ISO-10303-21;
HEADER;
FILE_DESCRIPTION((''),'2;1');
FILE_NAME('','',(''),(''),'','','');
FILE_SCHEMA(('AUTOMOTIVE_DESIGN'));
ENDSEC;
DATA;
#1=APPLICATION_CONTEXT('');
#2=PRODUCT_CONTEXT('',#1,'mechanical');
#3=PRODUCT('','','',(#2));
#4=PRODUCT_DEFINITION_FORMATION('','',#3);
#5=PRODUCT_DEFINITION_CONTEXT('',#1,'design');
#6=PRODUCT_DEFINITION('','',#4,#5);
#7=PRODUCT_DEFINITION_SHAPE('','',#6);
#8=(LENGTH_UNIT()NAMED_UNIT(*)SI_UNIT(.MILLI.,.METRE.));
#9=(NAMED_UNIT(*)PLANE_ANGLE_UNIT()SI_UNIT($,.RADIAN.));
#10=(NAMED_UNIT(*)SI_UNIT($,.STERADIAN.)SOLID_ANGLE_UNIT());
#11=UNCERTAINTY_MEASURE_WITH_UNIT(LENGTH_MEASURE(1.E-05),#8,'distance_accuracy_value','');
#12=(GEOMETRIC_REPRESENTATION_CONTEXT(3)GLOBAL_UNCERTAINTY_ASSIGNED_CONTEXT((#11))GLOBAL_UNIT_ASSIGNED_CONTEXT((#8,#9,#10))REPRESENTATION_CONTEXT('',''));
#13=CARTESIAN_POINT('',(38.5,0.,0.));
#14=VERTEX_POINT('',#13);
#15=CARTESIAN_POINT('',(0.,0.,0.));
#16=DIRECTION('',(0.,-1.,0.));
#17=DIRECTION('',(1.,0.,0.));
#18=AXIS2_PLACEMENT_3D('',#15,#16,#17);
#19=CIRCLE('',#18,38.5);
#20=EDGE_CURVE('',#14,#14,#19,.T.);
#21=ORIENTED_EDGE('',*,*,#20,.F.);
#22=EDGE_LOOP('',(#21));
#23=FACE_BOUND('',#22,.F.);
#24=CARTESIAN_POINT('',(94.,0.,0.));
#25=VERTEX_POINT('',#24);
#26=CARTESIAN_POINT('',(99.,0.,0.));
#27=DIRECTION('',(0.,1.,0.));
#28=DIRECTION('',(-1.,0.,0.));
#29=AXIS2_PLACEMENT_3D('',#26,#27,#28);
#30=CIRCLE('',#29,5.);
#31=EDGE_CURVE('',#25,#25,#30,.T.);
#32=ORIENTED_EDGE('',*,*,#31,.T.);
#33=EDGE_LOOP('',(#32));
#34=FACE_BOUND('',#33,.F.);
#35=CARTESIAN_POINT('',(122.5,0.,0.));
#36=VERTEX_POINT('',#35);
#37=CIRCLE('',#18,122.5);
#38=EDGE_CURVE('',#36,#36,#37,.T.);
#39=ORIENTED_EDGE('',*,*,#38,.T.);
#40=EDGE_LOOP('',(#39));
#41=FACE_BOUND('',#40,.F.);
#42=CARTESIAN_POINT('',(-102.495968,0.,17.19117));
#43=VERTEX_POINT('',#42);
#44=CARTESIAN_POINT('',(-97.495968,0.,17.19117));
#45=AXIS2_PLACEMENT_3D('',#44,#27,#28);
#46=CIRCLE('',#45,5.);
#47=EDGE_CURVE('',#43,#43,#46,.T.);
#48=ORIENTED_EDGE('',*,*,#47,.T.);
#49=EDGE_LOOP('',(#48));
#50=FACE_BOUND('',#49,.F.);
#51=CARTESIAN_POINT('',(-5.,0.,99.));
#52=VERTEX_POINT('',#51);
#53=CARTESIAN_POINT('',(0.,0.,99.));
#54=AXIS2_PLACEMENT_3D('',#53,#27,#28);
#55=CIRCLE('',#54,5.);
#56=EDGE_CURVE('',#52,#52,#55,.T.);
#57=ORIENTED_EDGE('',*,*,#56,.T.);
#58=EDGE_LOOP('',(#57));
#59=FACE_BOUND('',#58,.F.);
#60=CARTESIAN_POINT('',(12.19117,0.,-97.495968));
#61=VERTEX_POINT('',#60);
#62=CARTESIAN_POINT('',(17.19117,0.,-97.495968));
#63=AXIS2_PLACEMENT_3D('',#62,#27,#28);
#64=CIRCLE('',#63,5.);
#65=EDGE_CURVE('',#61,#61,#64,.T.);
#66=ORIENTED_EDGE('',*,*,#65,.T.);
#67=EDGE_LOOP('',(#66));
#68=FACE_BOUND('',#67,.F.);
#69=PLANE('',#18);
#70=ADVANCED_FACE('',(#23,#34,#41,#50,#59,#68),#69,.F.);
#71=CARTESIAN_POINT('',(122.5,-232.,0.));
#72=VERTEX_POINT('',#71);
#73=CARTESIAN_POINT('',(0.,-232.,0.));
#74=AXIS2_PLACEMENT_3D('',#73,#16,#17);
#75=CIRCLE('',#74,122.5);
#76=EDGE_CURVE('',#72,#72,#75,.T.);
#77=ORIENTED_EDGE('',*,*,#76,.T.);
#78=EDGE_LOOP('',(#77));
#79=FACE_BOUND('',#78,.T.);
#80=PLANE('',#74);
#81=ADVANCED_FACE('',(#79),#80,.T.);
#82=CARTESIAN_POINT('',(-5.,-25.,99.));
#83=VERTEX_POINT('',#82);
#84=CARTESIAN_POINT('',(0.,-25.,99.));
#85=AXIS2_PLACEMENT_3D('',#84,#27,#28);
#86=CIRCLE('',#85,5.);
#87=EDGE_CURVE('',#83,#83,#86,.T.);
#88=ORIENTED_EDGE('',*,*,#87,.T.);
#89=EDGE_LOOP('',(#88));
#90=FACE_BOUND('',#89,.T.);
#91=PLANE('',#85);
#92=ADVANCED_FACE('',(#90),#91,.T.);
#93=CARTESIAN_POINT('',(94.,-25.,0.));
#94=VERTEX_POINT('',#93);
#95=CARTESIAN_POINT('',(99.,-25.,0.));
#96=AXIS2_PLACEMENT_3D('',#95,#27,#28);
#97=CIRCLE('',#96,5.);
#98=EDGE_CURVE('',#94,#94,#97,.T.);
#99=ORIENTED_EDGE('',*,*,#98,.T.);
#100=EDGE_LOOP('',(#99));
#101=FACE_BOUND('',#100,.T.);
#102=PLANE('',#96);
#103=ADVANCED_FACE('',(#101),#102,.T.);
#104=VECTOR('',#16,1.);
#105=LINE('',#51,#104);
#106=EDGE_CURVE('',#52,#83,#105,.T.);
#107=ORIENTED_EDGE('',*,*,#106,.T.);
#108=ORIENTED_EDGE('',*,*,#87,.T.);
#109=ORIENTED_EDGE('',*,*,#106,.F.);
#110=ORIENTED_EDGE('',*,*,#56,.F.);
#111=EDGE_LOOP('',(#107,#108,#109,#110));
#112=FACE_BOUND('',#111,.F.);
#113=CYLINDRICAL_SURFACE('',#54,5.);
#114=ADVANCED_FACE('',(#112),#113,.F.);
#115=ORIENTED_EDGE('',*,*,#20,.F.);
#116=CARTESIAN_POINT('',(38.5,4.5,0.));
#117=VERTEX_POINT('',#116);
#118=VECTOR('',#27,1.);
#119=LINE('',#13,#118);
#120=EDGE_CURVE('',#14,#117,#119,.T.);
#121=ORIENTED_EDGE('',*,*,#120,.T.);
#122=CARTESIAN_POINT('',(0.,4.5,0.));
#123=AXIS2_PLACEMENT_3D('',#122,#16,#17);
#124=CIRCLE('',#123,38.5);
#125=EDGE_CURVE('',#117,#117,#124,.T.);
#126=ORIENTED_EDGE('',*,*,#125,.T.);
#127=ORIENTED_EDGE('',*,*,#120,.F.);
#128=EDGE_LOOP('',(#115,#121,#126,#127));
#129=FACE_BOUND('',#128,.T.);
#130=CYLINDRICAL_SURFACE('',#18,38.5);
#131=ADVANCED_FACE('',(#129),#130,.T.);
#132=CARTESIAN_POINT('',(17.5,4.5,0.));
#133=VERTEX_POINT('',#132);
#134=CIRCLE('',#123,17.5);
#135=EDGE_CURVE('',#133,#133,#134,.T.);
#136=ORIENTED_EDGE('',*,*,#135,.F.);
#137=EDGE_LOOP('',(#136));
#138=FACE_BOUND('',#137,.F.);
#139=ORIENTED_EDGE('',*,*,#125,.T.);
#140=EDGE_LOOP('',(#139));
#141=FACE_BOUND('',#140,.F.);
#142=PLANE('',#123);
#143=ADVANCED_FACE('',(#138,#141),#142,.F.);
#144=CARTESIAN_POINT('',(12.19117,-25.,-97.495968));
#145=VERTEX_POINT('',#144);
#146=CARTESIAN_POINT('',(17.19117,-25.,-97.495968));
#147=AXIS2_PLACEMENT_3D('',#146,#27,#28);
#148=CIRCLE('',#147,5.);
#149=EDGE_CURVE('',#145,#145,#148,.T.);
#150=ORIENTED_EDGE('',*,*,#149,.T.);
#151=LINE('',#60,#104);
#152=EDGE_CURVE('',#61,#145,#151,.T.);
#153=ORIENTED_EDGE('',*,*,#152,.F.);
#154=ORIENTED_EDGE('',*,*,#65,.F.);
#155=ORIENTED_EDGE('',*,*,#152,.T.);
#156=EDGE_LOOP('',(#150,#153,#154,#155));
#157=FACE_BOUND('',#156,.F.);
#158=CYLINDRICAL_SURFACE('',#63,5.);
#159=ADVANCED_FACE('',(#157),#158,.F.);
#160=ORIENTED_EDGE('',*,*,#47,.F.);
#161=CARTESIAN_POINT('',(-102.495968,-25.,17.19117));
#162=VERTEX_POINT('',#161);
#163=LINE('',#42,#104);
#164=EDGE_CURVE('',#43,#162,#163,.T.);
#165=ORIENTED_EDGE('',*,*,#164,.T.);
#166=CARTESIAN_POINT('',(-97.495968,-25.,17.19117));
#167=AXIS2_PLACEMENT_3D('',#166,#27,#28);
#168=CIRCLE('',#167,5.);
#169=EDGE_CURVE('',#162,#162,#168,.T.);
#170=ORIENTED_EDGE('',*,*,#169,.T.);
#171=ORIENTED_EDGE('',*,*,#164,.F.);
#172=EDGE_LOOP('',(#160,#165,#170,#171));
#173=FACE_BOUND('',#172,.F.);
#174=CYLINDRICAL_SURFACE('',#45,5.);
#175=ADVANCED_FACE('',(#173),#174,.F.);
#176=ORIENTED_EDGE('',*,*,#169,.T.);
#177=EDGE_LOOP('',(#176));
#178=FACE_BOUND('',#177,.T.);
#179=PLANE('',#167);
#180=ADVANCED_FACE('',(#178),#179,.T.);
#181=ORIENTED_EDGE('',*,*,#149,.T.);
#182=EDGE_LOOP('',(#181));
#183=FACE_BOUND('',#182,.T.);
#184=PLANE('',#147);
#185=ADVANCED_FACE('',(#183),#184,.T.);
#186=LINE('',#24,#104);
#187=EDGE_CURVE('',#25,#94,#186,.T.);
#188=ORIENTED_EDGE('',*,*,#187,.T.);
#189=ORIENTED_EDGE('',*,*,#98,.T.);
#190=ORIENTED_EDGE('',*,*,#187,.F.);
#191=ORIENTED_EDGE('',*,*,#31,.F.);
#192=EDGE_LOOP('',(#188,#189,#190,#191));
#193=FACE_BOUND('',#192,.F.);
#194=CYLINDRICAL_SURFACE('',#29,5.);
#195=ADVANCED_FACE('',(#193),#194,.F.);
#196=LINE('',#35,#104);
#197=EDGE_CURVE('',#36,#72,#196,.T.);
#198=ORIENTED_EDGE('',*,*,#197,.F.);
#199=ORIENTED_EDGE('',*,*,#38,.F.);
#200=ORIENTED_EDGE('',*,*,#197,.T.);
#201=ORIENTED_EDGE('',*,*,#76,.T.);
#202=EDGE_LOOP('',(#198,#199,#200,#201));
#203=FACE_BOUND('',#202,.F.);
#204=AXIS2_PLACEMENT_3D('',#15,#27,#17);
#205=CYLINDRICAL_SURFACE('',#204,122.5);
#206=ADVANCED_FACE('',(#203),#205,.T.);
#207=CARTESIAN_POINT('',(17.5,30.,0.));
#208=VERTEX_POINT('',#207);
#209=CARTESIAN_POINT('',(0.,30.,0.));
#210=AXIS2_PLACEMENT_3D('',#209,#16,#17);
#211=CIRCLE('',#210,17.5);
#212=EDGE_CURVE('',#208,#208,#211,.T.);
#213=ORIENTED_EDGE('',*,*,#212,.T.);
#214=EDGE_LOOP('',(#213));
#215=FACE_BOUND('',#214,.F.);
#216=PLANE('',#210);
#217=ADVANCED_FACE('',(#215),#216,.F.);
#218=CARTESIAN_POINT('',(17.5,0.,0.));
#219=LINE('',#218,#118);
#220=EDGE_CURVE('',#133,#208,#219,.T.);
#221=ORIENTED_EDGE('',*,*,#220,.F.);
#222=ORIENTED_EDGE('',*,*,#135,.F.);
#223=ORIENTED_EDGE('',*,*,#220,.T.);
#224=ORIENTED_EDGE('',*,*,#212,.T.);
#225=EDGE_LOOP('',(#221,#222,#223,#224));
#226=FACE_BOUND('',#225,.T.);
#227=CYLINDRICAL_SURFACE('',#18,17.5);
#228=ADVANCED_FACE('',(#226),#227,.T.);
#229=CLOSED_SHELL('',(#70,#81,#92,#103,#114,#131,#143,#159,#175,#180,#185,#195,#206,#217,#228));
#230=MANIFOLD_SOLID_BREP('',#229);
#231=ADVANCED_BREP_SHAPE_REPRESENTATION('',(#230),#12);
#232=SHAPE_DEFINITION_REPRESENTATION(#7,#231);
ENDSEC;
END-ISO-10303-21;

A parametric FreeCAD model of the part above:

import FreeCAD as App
import Part
import Sketcher
from FreeCAD import Vector

doc = App.newDocument("Part")
body = doc.addObject("PartDesign::Body", "Body")

sketch1 = body.newObject("Sketcher::SketchObject", "Sketch")
sketch1.AttachmentSupport = (doc.getObject("XZ_Plane"), [""])
sketch1.MapMode = "FlatFace"
sketch1.addGeometry(Part.Circle(Vector(0, 0, 0), Vector(0, 0, 1), 18), False)
sketch1.addConstraint([
    Sketcher.Constraint("Coincident", 0, 3, -1, 1),
    Sketcher.Constraint("Diameter", 0, 35.0),
])
pad1 = body.newObject("PartDesign::Pad", "Pad")
pad1.Profile = sketch1
pad1.Length = 30
pad1.Reversed = True

sketch2 = body.newObject("Sketcher::SketchObject", "Sketch001")
sketch2.AttachmentSupport = (doc.getObject("XZ_Plane"), [""])
sketch2.MapMode = "FlatFace"
sketch2.addGeometry(Part.Circle(Vector(0, 0, 0), Vector(0, 0, 1), 38), False)
sketch2.addConstraint([
    Sketcher.Constraint("Coincident", 0, 3, -1, 1),
    Sketcher.Constraint("Diameter", 0, 77.0),
])
pad2 = body.newObject("PartDesign::Pad", "Pad001")
pad2.Profile = sketch2
pad2.Length = 4.5
pad2.Reversed = True

sketch3 = body.newObject("Sketcher::SketchObject", "Sketch002")
sketch3.AttachmentSupport = (doc.getObject("XZ_Plane"), [""])
sketch3.MapMode = "FlatFace"
sketch3.addGeometry(Part.Circle(Vector(0, 0, 0), Vector(0, 0, 1), 122), False)
sketch3.addConstraint([
    Sketcher.Constraint("Coincident", 0, 3, -1, 1),
    Sketcher.Constraint("Diameter", 0, 245.0),
])
pad3 = body.newObject("PartDesign::Pad", "Pad002")
pad3.Profile = sketch3
pad3.Length = 232

sketch4 = body.newObject("Sketcher::SketchObject", "Sketch003")
sketch4.AttachmentSupport = (doc.getObject("XZ_Plane"), [""])
sketch4.MapMode = "FlatFace"
sketch4.addGeometry([
    Part.Circle(Vector(99, 0, 0), Vector(0, 0, 1), 5),
    Part.Circle(Vector(0, 99, 0), Vector(0, 0, 1), 5),
    Part.Circle(Vector(-97, 17, 0), Vector(0, 0, 1), 5),
    Part.Circle(Vector(17, -97, 0), Vector(0, 0, 1), 5),
], False)
sketch4.addConstraint([
    Sketcher.Constraint("Equal", 0, 1),
    Sketcher.Constraint("Equal", 1, 2),
    Sketcher.Constraint("Equal", 2, 3),
    Sketcher.Constraint("PointOnObject", 0, 3, -1),
    Sketcher.Constraint("PointOnObject", 1, 3, -2),
    Sketcher.Constraint("Diameter", 0, 10.0),
    Sketcher.Constraint("DistanceX", -1, 1, 0, 3, 99.0),
    Sketcher.Constraint("DistanceY", -1, 1, 1, 3, 99.0),
    Sketcher.Constraint("DistanceX", 2, 3, -1, 1, 97.495968),
    Sketcher.Constraint("DistanceY", -1, 1, 2, 3, 17.19117),
    Sketcher.Constraint("DistanceX", -1, 1, 3, 3, 17.19117),
    Sketcher.Constraint("DistanceY", 3, 3, -1, 1, 97.495968),
])
pocket1 = body.newObject("PartDesign::Pocket", "Pocket")
pocket1.Profile = sketch4
pocket1.Length = 25
pocket1.Reversed = True

doc.recompute()
